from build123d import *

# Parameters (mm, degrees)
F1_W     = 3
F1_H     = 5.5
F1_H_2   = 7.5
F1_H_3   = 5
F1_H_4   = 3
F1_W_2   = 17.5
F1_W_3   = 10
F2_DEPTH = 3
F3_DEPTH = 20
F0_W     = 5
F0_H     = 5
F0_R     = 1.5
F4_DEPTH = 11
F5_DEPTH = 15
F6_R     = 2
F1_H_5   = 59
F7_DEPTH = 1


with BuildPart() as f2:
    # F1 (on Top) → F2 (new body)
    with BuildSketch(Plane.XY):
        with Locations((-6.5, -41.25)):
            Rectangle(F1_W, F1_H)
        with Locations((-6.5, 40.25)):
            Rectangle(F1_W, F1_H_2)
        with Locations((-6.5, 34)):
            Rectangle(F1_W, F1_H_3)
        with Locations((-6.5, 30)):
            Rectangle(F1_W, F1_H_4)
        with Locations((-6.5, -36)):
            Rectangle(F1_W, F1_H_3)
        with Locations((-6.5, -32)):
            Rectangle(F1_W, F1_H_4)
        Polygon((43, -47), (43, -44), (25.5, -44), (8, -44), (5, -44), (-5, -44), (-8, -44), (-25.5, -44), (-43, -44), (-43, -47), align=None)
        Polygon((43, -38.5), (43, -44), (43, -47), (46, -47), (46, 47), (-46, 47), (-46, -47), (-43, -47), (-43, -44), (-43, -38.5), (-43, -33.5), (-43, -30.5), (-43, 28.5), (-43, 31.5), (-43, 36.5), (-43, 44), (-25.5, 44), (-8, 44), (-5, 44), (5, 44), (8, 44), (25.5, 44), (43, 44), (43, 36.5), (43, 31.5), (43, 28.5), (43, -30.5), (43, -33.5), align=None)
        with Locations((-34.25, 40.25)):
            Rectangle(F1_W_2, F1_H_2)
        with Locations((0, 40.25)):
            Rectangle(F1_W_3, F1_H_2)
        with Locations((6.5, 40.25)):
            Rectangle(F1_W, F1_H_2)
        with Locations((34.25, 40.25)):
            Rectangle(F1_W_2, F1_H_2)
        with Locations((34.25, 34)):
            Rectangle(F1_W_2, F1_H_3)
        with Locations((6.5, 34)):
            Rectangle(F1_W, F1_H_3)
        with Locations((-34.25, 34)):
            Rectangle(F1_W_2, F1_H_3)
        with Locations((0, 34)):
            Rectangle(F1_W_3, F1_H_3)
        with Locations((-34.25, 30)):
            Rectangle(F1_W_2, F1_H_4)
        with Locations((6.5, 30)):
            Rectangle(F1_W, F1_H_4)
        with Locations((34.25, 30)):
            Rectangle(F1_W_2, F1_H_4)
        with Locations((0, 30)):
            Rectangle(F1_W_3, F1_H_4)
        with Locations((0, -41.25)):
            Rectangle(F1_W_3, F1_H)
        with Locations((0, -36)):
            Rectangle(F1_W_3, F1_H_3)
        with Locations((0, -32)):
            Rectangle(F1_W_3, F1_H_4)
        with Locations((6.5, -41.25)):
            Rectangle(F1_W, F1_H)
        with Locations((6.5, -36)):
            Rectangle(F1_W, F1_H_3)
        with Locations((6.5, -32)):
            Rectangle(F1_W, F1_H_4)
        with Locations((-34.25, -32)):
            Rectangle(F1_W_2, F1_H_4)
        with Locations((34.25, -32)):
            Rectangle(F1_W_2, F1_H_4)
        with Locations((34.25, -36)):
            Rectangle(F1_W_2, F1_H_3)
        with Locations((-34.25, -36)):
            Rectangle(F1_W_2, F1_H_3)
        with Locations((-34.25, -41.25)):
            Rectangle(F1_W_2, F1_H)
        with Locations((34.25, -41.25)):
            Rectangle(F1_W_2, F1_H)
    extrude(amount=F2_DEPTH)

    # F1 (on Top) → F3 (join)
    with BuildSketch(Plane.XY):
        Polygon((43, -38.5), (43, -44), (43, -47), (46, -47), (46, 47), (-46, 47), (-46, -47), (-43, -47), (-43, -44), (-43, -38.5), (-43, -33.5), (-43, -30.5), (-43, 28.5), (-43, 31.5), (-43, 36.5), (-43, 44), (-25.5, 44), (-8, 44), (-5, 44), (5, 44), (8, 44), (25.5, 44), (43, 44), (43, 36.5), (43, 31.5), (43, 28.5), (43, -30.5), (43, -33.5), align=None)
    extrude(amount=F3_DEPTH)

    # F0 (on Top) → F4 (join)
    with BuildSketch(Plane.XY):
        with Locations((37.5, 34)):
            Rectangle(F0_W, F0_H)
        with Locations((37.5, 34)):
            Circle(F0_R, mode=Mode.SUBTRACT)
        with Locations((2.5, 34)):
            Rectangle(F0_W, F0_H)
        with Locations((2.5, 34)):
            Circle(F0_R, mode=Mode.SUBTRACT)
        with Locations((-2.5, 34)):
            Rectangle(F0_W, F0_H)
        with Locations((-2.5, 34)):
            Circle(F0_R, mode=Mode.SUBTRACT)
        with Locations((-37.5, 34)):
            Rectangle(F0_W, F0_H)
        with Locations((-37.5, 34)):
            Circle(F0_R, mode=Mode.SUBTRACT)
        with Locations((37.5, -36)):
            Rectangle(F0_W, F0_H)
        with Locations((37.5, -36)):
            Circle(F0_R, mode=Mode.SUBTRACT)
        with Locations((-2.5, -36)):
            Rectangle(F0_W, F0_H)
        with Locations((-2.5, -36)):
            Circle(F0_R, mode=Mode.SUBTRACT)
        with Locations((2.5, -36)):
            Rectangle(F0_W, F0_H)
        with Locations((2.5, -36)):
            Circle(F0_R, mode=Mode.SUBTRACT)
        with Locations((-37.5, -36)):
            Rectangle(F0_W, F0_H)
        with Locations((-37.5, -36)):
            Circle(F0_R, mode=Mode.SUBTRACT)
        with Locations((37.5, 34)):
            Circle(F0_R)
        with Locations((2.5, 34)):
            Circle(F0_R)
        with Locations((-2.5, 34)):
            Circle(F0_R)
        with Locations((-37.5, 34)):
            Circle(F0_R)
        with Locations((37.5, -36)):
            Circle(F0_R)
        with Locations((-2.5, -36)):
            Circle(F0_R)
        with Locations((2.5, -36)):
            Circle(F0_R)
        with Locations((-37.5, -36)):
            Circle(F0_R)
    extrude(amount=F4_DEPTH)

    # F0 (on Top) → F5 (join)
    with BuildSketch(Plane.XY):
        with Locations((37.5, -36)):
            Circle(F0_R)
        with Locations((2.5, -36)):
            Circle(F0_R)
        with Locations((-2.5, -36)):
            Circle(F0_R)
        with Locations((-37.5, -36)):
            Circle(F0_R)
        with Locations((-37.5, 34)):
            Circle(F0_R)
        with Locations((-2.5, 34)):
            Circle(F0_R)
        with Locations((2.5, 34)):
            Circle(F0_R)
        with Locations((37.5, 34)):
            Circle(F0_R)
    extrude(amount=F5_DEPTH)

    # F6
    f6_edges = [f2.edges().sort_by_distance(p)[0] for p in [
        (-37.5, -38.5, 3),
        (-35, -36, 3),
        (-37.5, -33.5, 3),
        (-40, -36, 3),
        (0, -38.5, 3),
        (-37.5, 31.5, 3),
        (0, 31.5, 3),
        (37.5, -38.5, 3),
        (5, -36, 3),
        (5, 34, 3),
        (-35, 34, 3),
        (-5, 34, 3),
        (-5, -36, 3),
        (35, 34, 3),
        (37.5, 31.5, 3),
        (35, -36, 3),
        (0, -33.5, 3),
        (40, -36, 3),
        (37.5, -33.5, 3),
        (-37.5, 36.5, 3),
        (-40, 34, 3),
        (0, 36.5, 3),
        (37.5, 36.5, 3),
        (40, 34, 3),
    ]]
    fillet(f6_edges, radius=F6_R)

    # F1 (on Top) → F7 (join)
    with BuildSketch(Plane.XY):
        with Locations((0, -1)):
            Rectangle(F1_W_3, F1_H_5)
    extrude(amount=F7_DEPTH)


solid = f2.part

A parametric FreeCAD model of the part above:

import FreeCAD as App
import Part
import Sketcher

V = App.Vector
Q = App.Units.Quantity


def edges_at(feature, points):
    """Names of the edges that pass closest to the given points."""
    edges = feature.Shape.Edges
    near = lambda p: min(range(len(edges)), key=lambda i: edges[i].distToShape(Part.Vertex(*p))[0])
    return sorted({f"Edge{near(p) + 1}" for p in points})

doc = App.newDocument("Part")
params = doc.addObject("Spreadsheet::Sheet", "Params")
for row, (alias, value) in enumerate([
    ("sketch1_width", "92 mm"),
    ("sketch1_width2", "16 mm"),
    ("sketch1_height", "94 mm"),
    ("sketch1_height2", "59 mm"),
    ("sketch1_width3", "17.5 mm"),
    ("pad1_length", "3 mm"),
    ("sketch2_width", "3 mm"),
    ("sketch2_width2", "92 mm"),
    ("sketch2_height", "94 mm"),
    ("sketch2_height2", "91 mm"),
    ("pad2_length", "20 mm"),
    ("sketch3_width", "5 mm"),
    ("sketch3_width2", "10 mm"),
    ("pad3_length", "11 mm"),
    ("sketch4_diameter", "3 mm"),
    ("pad4_length", "15 mm"),
    ("fillet_radius", "2 mm"),
    ("sketch5_width", "10 mm"),
    ("sketch5_height", "59 mm"),
    ("pad5_length", "1 mm"),
], start=1):
    params.set(f"A{row}", alias)
    params.set(f"B{row}", "=" + value)
    params.setAlias(f"B{row}", alias)

body = doc.addObject("PartDesign::Body", "Body")

sketch1 = body.newObject("Sketcher::SketchObject", "Sketch")
sketch1.AttachmentSupport = (doc.getObject("XY_Plane"), [""])
sketch1.MapMode = "FlatFace"
sketch1.addGeometry([
    Part.LineSegment(V(46, -47, 0), V(46, 47, 0)),
    Part.LineSegment(V(46, 47, 0), V(-46, 47, 0)),
    Part.LineSegment(V(-46, 47, 0), V(-46, -47, 0)),
    Part.LineSegment(V(-46, -47, 0), V(46, -47, 0)),
    Part.LineSegment(V(-8, -30.5, 0), V(-8, -44, 0)),
    Part.LineSegment(V(-8, -44, 0), V(-25.5, -44, 0)),
    Part.LineSegment(V(-25.5, -44, 0), V(-25.5, -30.5, 0)),
    Part.LineSegment(V(-25.5, -30.5, 0), V(-43, -30.5, 0)),
    Part.LineSegment(V(-43, -30.5, 0), V(-43, 28.5, 0)),
    Part.LineSegment(V(-43, 28.5, 0), V(-25.5, 28.5, 0)),
    Part.LineSegment(V(-25.5, 28.5, 0), V(-25.5, 44, 0)),
    Part.LineSegment(V(-25.5, 44, 0), V(-8, 44, 0)),
    Part.LineSegment(V(-8, 44, 0), V(-8, 28.5, 0)),
    Part.LineSegment(V(-8, 28.5, 0), V(8, 28.5, 0)),
    Part.LineSegment(V(8, 28.5, 0), V(8, 44, 0)),
    Part.LineSegment(V(8, 44, 0), V(25.5, 44, 0)),
    Part.LineSegment(V(25.5, 44, 0), V(25.5, 28.5, 0)),
    Part.LineSegment(V(25.5, 28.5, 0), V(43, 28.5, 0)),
    Part.LineSegment(V(43, 28.5, 0), V(43, -30.5, 0)),
    Part.LineSegment(V(43, -30.5, 0), V(25.5, -30.5, 0)),
    Part.LineSegment(V(25.5, -30.5, 0), V(25.5, -44, 0)),
    Part.LineSegment(V(25.5, -44, 0), V(8, -44, 0)),
    Part.LineSegment(V(8, -44, 0), V(8, -30.5, 0)),
    Part.LineSegment(V(8, -30.5, 0), V(-8, -30.5, 0)),
], False)
sketch1.addConstraint([
    Sketcher.Constraint("Coincident", 0, 2, 1, 1),
    Sketcher.Constraint("Coincident", 1, 2, 2, 1),
    Sketcher.Constraint("Coincident", 2, 2, 3, 1),
    Sketcher.Constraint("Coincident", 3, 2, 0, 1),
    Sketcher.Constraint("Coincident", 4, 2, 5, 1),
    Sketcher.Constraint("Coincident", 5, 2, 6, 1),
    Sketcher.Constraint("Coincident", 6, 2, 7, 1),
    Sketcher.Constraint("Coincident", 7, 2, 8, 1),
    Sketcher.Constraint("Coincident", 8, 2, 9, 1),
    Sketcher.Constraint("Coincident", 9, 2, 10, 1),
    Sketcher.Constraint("Coincident", 10, 2, 11, 1),
    Sketcher.Constraint("Coincident", 11, 2, 12, 1),
    Sketcher.Constraint("Coincident", 12, 2, 13, 1),
    Sketcher.Constraint("Coincident", 13, 2, 14, 1),
    Sketcher.Constraint("Coincident", 14, 2, 15, 1),
    Sketcher.Constraint("Coincident", 15, 2, 16, 1),
    Sketcher.Constraint("Coincident", 16, 2, 17, 1),
    Sketcher.Constraint("Coincident", 17, 2, 18, 1),
    Sketcher.Constraint("Coincident", 18, 2, 19, 1),
    Sketcher.Constraint("Coincident", 19, 2, 20, 1),
    Sketcher.Constraint("Coincident", 20, 2, 21, 1),
    Sketcher.Constraint("Coincident", 21, 2, 22, 1),
    Sketcher.Constraint("Coincident", 22, 2, 23, 1),
    Sketcher.Constraint("Coincident", 23, 2, 4, 1),
    Sketcher.Constraint("Vertical", 0),
    Sketcher.Constraint("Horizontal", 1),
    Sketcher.Constraint("Vertical", 2),
    Sketcher.Constraint("Horizontal", 3),
    Sketcher.Constraint("Vertical", 4),
    Sketcher.Constraint("Horizontal", 5),
    Sketcher.Constraint("Vertical", 6),
    Sketcher.Constraint("Horizontal", 7),
    Sketcher.Constraint("Vertical", 8),
    Sketcher.Constraint("Horizontal", 9),
    Sketcher.Constraint("Vertical", 10),
    Sketcher.Constraint("Horizontal", 11),
    Sketcher.Constraint("Vertical", 12),
    Sketcher.Constraint("Horizontal", 13),
    Sketcher.Constraint("Vertical", 14),
    Sketcher.Constraint("Horizontal", 15),
    Sketcher.Constraint("Vertical", 16),
    Sketcher.Constraint("Horizontal", 17),
    Sketcher.Constraint("Vertical", 18),
    Sketcher.Constraint("Horizontal", 19),
    Sketcher.Constraint("Vertical", 20),
    Sketcher.Constraint("Horizontal", 21),
    Sketcher.Constraint("Vertical", 22),
    Sketcher.Constraint("Horizontal", 23),
    Sketcher.Constraint("Symmetric", 0, 2, 2, 2, -1, 1),
    Sketcher.Constraint("Symmetric", 4, 2, 14, 2, -1, 1),
    Sketcher.Constraint("Symmetric", 10, 2, 20, 2, -1, 1),
    Sketcher.Constraint("Symmetric", 11, 2, 14, 2, -2),
    Sketcher.Constraint("Symmetric", 9, 2, 16, 2, -2),
    Sketcher.Constraint("Symmetric", 7, 2, 18, 2, -2),
    Sketcher.Constraint("Horizontal", 9, 2, 12, 2),
    Sketcher.Constraint("Horizontal", 19, 2, 22, 2),
    Sketcher.Constraint("Vertical", 6, 2, 9, 2),
    Sketcher.Constraint("Vertical", 14, 2, 21, 2),
    Sketcher.Constraint("Equal", 5, 7),
    Sketcher.Constraint("DistanceX", 1, 2, 1, 1, Q("92 mm")),
    Sketcher.Constraint("DistanceX", 13, 1, 13, 2, Q("16 mm")),
    Sketcher.Constraint("DistanceY", 0, 1, 0, 2, Q("94 mm")),
    Sketcher.Constraint("DistanceY", 8, 1, 8, 2, Q("59 mm")),
    Sketcher.Constraint("DistanceX", 5, 2, 5, 1, Q("17.5 mm")),
    Sketcher.Constraint("DistanceY", 4, 2, 4, 1, Q("13.5 mm")),
    Sketcher.Constraint("DistanceY", 10, 1, 10, 2, Q("15.5 mm")),
])
sketch1.setExpression("Constraints[59]", "Params.sketch1_width")
sketch1.setExpression("Constraints[60]", "Params.sketch1_width2")
sketch1.setExpression("Constraints[61]", "Params.sketch1_height")
sketch1.setExpression("Constraints[62]", "Params.sketch1_height2")
sketch1.setExpression("Constraints[63]", "Params.sketch1_width3")
pad1 = body.newObject("PartDesign::Pad", "Pad")
pad1.Profile = sketch1
pad1.setExpression("Length", "Params.pad1_length")

sketch2 = body.newObject("Sketcher::SketchObject", "Sketch001")
sketch2.AttachmentSupport = (doc.getObject("XY_Plane"), [""])
sketch2.MapMode = "FlatFace"
sketch2.addGeometry([
    Part.LineSegment(V(43, -47, 0), V(46, -47, 0)),
    Part.LineSegment(V(46, -47, 0), V(46, 47, 0)),
    Part.LineSegment(V(46, 47, 0), V(-46, 47, 0)),
    Part.LineSegment(V(-46, 47, 0), V(-46, -47, 0)),
    Part.LineSegment(V(-46, -47, 0), V(-43, -47, 0)),
    Part.LineSegment(V(-43, -47, 0), V(-43, 44, 0)),
    Part.LineSegment(V(-43, 44, 0), V(43, 44, 0)),
    Part.LineSegment(V(43, 44, 0), V(43, -47, 0)),
], False)
sketch2.addConstraint([
    Sketcher.Constraint("Coincident", 0, 2, 1, 1),
    Sketcher.Constraint("Coincident", 1, 2, 2, 1),
    Sketcher.Constraint("Coincident", 2, 2, 3, 1),
    Sketcher.Constraint("Coincident", 3, 2, 4, 1),
    Sketcher.Constraint("Coincident", 4, 2, 5, 1),
    Sketcher.Constraint("Coincident", 5, 2, 6, 1),
    Sketcher.Constraint("Coincident", 6, 2, 7, 1),
    Sketcher.Constraint("Coincident", 7, 2, 0, 1),
    Sketcher.Constraint("Horizontal", 0),
    Sketcher.Constraint("Vertical", 1),
    Sketcher.Constraint("Horizontal", 2),
    Sketcher.Constraint("Vertical", 3),
    Sketcher.Constraint("Horizontal", 4),
    Sketcher.Constraint("Vertical", 5),
    Sketcher.Constraint("Horizontal", 6),
    Sketcher.Constraint("Vertical", 7),
    Sketcher.Constraint("Symmetric", 0, 2, 2, 2, -1, 1),
    Sketcher.Constraint("Symmetric", 4, 2, 7, 2, -2),
    Sketcher.Constraint("DistanceX", 0, 1, 0, 2, Q("3 mm")),
    Sketcher.Constraint("DistanceX", 2, 2, 2, 1, Q("92 mm")),
    Sketcher.Constraint("DistanceY", 1, 1, 1, 2, Q("94 mm")),
    Sketcher.Constraint("DistanceY", 5, 1, 5, 2, Q("91 mm")),
])
sketch2.setExpression("Constraints[18]", "Params.sketch2_width")
sketch2.setExpression("Constraints[19]", "Params.sketch2_width2")
sketch2.setExpression("Constraints[20]", "Params.sketch2_height")
sketch2.setExpression("Constraints[21]", "Params.sketch2_height2")
pad2 = body.newObject("PartDesign::Pad", "Pad001")
pad2.Profile = sketch2
pad2.setExpression("Length", "Params.pad2_length")

sketch3 = body.newObject("Sketcher::SketchObject", "Sketch002")
sketch3.AttachmentSupport = (doc.getObject("XY_Plane"), [""])
sketch3.MapMode = "FlatFace"
sketch3.addGeometry([
    Part.LineSegment(V(35, 36.5, 0), V(35, 31.5, 0)),
    Part.LineSegment(V(35, 31.5, 0), V(40, 31.5, 0)),
    Part.LineSegment(V(40, 31.5, 0), V(40, 36.5, 0)),
    Part.LineSegment(V(40, 36.5, 0), V(35, 36.5, 0)),
    Part.LineSegment(V(5, 31.5, 0), V(5, 36.5, 0)),
    Part.LineSegment(V(5, 36.5, 0), V(-5, 36.5, 0)),
    Part.LineSegment(V(-5, 36.5, 0), V(-5, 31.5, 0)),
    Part.LineSegment(V(-5, 31.5, 0), V(5, 31.5, 0)),
    Part.LineSegment(V(-40, 36.5, 0), V(-40, 31.5, 0)),
    Part.LineSegment(V(-40, 31.5, 0), V(-35, 31.5, 0)),
    Part.LineSegment(V(-35, 31.5, 0), V(-35, 36.5, 0)),
    Part.LineSegment(V(-35, 36.5, 0), V(-40, 36.5, 0)),
    Part.LineSegment(V(35, -33.5, 0), V(35, -38.5, 0)),
    Part.LineSegment(V(35, -38.5, 0), V(40, -38.5, 0)),
    Part.LineSegment(V(40, -38.5, 0), V(40, -33.5, 0)),
    Part.LineSegment(V(40, -33.5, 0), V(35, -33.5, 0)),
    Part.LineSegment(V(-5, -33.5, 0), V(-5, -38.5, 0)),
    Part.LineSegment(V(-5, -38.5, 0), V(5, -38.5, 0)),
    Part.LineSegment(V(5, -38.5, 0), V(5, -33.5, 0)),
    Part.LineSegment(V(5, -33.5, 0), V(-5, -33.5, 0)),
    Part.LineSegment(V(-40, -33.5, 0), V(-40, -38.5, 0)),
    Part.LineSegment(V(-40, -38.5, 0), V(-35, -38.5, 0)),
    Part.LineSegment(V(-35, -38.5, 0), V(-35, -33.5, 0)),
    Part.LineSegment(V(-35, -33.5, 0), V(-40, -33.5, 0)),
], False)
sketch3.addConstraint([
    Sketcher.Constraint("Coincident", 0, 2, 1, 1),
    Sketcher.Constraint("Coincident", 1, 2, 2, 1),
    Sketcher.Constraint("Coincident", 2, 2, 3, 1),
    Sketcher.Constraint("Coincident", 3, 2, 0, 1),
    Sketcher.Constraint("Coincident", 4, 2, 5, 1),
    Sketcher.Constraint("Coincident", 5, 2, 6, 1),
    Sketcher.Constraint("Coincident", 6, 2, 7, 1),
    Sketcher.Constraint("Coincident", 7, 2, 4, 1),
    Sketcher.Constraint("Coincident", 8, 2, 9, 1),
    Sketcher.Constraint("Coincident", 9, 2, 10, 1),
    Sketcher.Constraint("Coincident", 10, 2, 11, 1),
    Sketcher.Constraint("Coincident", 11, 2, 8, 1),
    Sketcher.Constraint("Coincident", 12, 2, 13, 1),
    Sketcher.Constraint("Coincident", 13, 2, 14, 1),
    Sketcher.Constraint("Coincident", 14, 2, 15, 1),
    Sketcher.Constraint("Coincident", 15, 2, 12, 1),
    Sketcher.Constraint("Coincident", 16, 2, 17, 1),
    Sketcher.Constraint("Coincident", 17, 2, 18, 1),
    Sketcher.Constraint("Coincident", 18, 2, 19, 1),
    Sketcher.Constraint("Coincident", 19, 2, 16, 1),
    Sketcher.Constraint("Coincident", 20, 2, 21, 1),
    Sketcher.Constraint("Coincident", 21, 2, 22, 1),
    Sketcher.Constraint("Coincident", 22, 2, 23, 1),
    Sketcher.Constraint("Coincident", 23, 2, 20, 1),
    Sketcher.Constraint("Vertical", 0),
    Sketcher.Constraint("Horizontal", 1),
    Sketcher.Constraint("Vertical", 2),
    Sketcher.Constraint("Horizontal", 3),
    Sketcher.Constraint("Vertical", 4),
    Sketcher.Constraint("Horizontal", 5),
    Sketcher.Constraint("Vertical", 6),
    Sketcher.Constraint("Horizontal", 7),
    Sketcher.Constraint("Vertical", 8),
    Sketcher.Constraint("Horizontal", 9),
    Sketcher.Constraint("Vertical", 10),
    Sketcher.Constraint("Horizontal", 11),
    Sketcher.Constraint("Vertical", 12),
    Sketcher.Constraint("Horizontal", 13),
    Sketcher.Constraint("Vertical", 14),
    Sketcher.Constraint("Horizontal", 15),
    Sketcher.Constraint("Vertical", 16),
    Sketcher.Constraint("Horizontal", 17),
    Sketcher.Constraint("Vertical", 18),
    Sketcher.Constraint("Horizontal", 19),
    Sketcher.Constraint("Vertical", 20),
    Sketcher.Constraint("Horizontal", 21),
    Sketcher.Constraint("Vertical", 22),
    Sketcher.Constraint("Horizontal", 23),
    Sketcher.Constraint("Symmetric", 1, 2, 8, 2, -2),
    Sketcher.Constraint("Symmetric", 3, 2, 10, 2, -2),
    Sketcher.Constraint("Symmetric", 13, 2, 20, 2, -2),
    Sketcher.Constraint("Symmetric", 15, 2, 22, 2, -2),
    Sketcher.Constraint("Horizontal", 3, 2, 4, 2),
    Sketcher.Constraint("Horizontal", 1, 2, 6, 2),
    Sketcher.Constraint("Horizontal", 13, 2, 16, 2),
    Sketcher.Constraint("Horizontal", 15, 2, 18, 2),
    Sketcher.Constraint("Vertical", 3, 2, 12, 2),
    Sketcher.Constraint("Vertical", 2, 2, 13, 2),
    Sketcher.Constraint("Vertical", 6, 2, 16, 2),
    Sketcher.Constraint("Vertical", 7, 2, 17, 2),
    Sketcher.Constraint("Equal", 23, 0),
    Sketcher.Constraint("Equal", 10, 12),
    Sketcher.Constraint("DistanceX", 1, 1, 1, 2, Q("5 mm")),
    Sketcher.Constraint("DistanceX", 5, 2, 5, 1, Q("10 mm")),
    Sketcher.Constraint("DistanceX", -1, 1, 0, 2, Q("35 mm")),
    Sketcher.Constraint("DistanceX", -1, 1, 4, 2, Q("5 mm")),
    Sketcher.Constraint("DistanceY", 12, 2, 0, 2, Q("70 mm")),
    Sketcher.Constraint("DistanceY", -1, 1, 0, 2, Q("31.5 mm")),
])
sketch3.setExpression("Constraints[62]", "Params.sketch3_width")
sketch3.setExpression("Constraints[63]", "Params.sketch3_width2")
pad3 = body.newObject("PartDesign::Pad", "Pad002")
pad3.Profile = sketch3
pad3.setExpression("Length", "Params.pad3_length")

sketch4 = body.newObject("Sketcher::SketchObject", "Sketch003")
sketch4.AttachmentSupport = (doc.getObject("XY_Plane"), [""])
sketch4.MapMode = "FlatFace"
sketch4.addGeometry([
    Part.Circle(V(37.5, -36, 0), V(0, 0, 1), 1.5),
    Part.Circle(V(2.5, -36, 0), V(0, 0, 1), 1.5),
    Part.Circle(V(-2.5, -36, 0), V(0, 0, 1), 1.5),
    Part.Circle(V(-37.5, -36, 0), V(0, 0, 1), 1.5),
    Part.Circle(V(-37.5, 34, 0), V(0, 0, 1), 1.5),
    Part.Circle(V(-2.5, 34, 0), V(0, 0, 1), 1.5),
    Part.Circle(V(2.5, 34, 0), V(0, 0, 1), 1.5),
    Part.Circle(V(37.5, 34, 0), V(0, 0, 1), 1.5),
], False)
sketch4.addConstraint([
    Sketcher.Constraint("Equal", 0, 1),
    Sketcher.Constraint("Equal", 1, 2),
    Sketcher.Constraint("Equal", 2, 3),
    Sketcher.Constraint("Equal", 3, 4),
    Sketcher.Constraint("Equal", 4, 5),
    Sketcher.Constraint("Equal", 5, 6),
    Sketcher.Constraint("Equal", 6, 7),
    Sketcher.Constraint("Symmetric", 1, 3, 2, 3, -2),
    Sketcher.Constraint("Symmetric", 0, 3, 3, 3, -2),
    Sketcher.Constraint("Symmetric", 5, 3, 6, 3, -2),
    Sketcher.Constraint("Symmetric", 4, 3, 7, 3, -2),
    Sketcher.Constraint("Horizontal", 0, 3, 1, 3),
    Sketcher.Constraint("Horizontal", 4, 3, 5, 3),
    Sketcher.Constraint("Vertical", 3, 3, 4, 3),
    Sketcher.Constraint("Vertical", 2, 3, 5, 3),
    Sketcher.Constraint("Diameter", 0, Q("3 mm")),
    Sketcher.Constraint("DistanceY", 0, 3, -1, 1, Q("36 mm")),
    Sketcher.Constraint("DistanceY", -1, 1, 4, 3, Q("34 mm")),
    Sketcher.Constraint("DistanceX", 1, 3, 0, 3, Q("35 mm")),
    Sketcher.Constraint("DistanceX", 2, 3, 1, 3, Q("5 mm")),
])
sketch4.setExpression("Constraints[15]", "Params.sketch4_diameter")
pad4 = body.newObject("PartDesign::Pad", "Pad003")
pad4.Profile = sketch4
pad4.setExpression("Length", "Params.pad4_length")
doc.recompute()

fillet = body.newObject("PartDesign::Fillet", "Fillet")
fillet.Base = (pad4, edges_at(pad4, [
    (-37.5, -38.5, 3),
    (-35, -36, 3),
    (-37.5, -33.5, 3),
    (-40, -36, 3),
    (0, -38.5, 3),
    (-37.5, 31.5, 3),
    (0, 31.5, 3),
    (37.5, -38.5, 3),
    (5, -36, 3),
    (5, 34, 3),
    (-35, 34, 3),
    (-5, 34, 3),
    (-5, -36, 3),
    (35, 34, 3),
    (37.5, 31.5, 3),
    (35, -36, 3),
    (0, -33.5, 3),
    (40, -36, 3),
    (37.5, -33.5, 3),
    (-37.5, 36.5, 3),
    (-40, 34, 3),
    (0, 36.5, 3),
    (37.5, 36.5, 3),
    (40, 34, 3),
]))
fillet.setExpression("Radius", "Params.fillet_radius")

sketch5 = body.newObject("Sketcher::SketchObject", "Sketch004")
sketch5.AttachmentSupport = (doc.getObject("XY_Plane"), [""])
sketch5.MapMode = "FlatFace"
sketch5.addGeometry([
    Part.LineSegment(V(-5, 28.5, 0), V(-5, -30.5, 0)),
    Part.LineSegment(V(-5, -30.5, 0), V(5, -30.5, 0)),
    Part.LineSegment(V(5, -30.5, 0), V(5, 28.5, 0)),
    Part.LineSegment(V(5, 28.5, 0), V(-5, 28.5, 0)),
], False)
sketch5.addConstraint([
    Sketcher.Constraint("Coincident", 0, 2, 1, 1),
    Sketcher.Constraint("Coincident", 1, 2, 2, 1),
    Sketcher.Constraint("Coincident", 2, 2, 3, 1),
    Sketcher.Constraint("Coincident", 3, 2, 0, 1),
    Sketcher.Constraint("Vertical", 0),
    Sketcher.Constraint("Horizontal", 1),
    Sketcher.Constraint("Vertical", 2),
    Sketcher.Constraint("Horizontal", 3),
    Sketcher.Constraint("DistanceX", 1, 1, 1, 2, Q("10 mm")),
    Sketcher.Constraint("DistanceY", 0, 2, 0, 1, Q("59 mm")),
    Sketcher.Constraint("DistanceX", 0, 2, -1, 1, Q("5 mm")),
    Sketcher.Constraint("DistanceY", 0, 2, -1, 1, Q("30.5 mm")),
])
sketch5.setExpression("Constraints[8]", "Params.sketch5_width")
sketch5.setExpression("Constraints[9]", "Params.sketch5_height")
pad5 = body.newObject("PartDesign::Pad", "Pad004")
pad5.Profile = sketch5
pad5.setExpression("Length", "Params.pad5_length")

doc.recompute()
